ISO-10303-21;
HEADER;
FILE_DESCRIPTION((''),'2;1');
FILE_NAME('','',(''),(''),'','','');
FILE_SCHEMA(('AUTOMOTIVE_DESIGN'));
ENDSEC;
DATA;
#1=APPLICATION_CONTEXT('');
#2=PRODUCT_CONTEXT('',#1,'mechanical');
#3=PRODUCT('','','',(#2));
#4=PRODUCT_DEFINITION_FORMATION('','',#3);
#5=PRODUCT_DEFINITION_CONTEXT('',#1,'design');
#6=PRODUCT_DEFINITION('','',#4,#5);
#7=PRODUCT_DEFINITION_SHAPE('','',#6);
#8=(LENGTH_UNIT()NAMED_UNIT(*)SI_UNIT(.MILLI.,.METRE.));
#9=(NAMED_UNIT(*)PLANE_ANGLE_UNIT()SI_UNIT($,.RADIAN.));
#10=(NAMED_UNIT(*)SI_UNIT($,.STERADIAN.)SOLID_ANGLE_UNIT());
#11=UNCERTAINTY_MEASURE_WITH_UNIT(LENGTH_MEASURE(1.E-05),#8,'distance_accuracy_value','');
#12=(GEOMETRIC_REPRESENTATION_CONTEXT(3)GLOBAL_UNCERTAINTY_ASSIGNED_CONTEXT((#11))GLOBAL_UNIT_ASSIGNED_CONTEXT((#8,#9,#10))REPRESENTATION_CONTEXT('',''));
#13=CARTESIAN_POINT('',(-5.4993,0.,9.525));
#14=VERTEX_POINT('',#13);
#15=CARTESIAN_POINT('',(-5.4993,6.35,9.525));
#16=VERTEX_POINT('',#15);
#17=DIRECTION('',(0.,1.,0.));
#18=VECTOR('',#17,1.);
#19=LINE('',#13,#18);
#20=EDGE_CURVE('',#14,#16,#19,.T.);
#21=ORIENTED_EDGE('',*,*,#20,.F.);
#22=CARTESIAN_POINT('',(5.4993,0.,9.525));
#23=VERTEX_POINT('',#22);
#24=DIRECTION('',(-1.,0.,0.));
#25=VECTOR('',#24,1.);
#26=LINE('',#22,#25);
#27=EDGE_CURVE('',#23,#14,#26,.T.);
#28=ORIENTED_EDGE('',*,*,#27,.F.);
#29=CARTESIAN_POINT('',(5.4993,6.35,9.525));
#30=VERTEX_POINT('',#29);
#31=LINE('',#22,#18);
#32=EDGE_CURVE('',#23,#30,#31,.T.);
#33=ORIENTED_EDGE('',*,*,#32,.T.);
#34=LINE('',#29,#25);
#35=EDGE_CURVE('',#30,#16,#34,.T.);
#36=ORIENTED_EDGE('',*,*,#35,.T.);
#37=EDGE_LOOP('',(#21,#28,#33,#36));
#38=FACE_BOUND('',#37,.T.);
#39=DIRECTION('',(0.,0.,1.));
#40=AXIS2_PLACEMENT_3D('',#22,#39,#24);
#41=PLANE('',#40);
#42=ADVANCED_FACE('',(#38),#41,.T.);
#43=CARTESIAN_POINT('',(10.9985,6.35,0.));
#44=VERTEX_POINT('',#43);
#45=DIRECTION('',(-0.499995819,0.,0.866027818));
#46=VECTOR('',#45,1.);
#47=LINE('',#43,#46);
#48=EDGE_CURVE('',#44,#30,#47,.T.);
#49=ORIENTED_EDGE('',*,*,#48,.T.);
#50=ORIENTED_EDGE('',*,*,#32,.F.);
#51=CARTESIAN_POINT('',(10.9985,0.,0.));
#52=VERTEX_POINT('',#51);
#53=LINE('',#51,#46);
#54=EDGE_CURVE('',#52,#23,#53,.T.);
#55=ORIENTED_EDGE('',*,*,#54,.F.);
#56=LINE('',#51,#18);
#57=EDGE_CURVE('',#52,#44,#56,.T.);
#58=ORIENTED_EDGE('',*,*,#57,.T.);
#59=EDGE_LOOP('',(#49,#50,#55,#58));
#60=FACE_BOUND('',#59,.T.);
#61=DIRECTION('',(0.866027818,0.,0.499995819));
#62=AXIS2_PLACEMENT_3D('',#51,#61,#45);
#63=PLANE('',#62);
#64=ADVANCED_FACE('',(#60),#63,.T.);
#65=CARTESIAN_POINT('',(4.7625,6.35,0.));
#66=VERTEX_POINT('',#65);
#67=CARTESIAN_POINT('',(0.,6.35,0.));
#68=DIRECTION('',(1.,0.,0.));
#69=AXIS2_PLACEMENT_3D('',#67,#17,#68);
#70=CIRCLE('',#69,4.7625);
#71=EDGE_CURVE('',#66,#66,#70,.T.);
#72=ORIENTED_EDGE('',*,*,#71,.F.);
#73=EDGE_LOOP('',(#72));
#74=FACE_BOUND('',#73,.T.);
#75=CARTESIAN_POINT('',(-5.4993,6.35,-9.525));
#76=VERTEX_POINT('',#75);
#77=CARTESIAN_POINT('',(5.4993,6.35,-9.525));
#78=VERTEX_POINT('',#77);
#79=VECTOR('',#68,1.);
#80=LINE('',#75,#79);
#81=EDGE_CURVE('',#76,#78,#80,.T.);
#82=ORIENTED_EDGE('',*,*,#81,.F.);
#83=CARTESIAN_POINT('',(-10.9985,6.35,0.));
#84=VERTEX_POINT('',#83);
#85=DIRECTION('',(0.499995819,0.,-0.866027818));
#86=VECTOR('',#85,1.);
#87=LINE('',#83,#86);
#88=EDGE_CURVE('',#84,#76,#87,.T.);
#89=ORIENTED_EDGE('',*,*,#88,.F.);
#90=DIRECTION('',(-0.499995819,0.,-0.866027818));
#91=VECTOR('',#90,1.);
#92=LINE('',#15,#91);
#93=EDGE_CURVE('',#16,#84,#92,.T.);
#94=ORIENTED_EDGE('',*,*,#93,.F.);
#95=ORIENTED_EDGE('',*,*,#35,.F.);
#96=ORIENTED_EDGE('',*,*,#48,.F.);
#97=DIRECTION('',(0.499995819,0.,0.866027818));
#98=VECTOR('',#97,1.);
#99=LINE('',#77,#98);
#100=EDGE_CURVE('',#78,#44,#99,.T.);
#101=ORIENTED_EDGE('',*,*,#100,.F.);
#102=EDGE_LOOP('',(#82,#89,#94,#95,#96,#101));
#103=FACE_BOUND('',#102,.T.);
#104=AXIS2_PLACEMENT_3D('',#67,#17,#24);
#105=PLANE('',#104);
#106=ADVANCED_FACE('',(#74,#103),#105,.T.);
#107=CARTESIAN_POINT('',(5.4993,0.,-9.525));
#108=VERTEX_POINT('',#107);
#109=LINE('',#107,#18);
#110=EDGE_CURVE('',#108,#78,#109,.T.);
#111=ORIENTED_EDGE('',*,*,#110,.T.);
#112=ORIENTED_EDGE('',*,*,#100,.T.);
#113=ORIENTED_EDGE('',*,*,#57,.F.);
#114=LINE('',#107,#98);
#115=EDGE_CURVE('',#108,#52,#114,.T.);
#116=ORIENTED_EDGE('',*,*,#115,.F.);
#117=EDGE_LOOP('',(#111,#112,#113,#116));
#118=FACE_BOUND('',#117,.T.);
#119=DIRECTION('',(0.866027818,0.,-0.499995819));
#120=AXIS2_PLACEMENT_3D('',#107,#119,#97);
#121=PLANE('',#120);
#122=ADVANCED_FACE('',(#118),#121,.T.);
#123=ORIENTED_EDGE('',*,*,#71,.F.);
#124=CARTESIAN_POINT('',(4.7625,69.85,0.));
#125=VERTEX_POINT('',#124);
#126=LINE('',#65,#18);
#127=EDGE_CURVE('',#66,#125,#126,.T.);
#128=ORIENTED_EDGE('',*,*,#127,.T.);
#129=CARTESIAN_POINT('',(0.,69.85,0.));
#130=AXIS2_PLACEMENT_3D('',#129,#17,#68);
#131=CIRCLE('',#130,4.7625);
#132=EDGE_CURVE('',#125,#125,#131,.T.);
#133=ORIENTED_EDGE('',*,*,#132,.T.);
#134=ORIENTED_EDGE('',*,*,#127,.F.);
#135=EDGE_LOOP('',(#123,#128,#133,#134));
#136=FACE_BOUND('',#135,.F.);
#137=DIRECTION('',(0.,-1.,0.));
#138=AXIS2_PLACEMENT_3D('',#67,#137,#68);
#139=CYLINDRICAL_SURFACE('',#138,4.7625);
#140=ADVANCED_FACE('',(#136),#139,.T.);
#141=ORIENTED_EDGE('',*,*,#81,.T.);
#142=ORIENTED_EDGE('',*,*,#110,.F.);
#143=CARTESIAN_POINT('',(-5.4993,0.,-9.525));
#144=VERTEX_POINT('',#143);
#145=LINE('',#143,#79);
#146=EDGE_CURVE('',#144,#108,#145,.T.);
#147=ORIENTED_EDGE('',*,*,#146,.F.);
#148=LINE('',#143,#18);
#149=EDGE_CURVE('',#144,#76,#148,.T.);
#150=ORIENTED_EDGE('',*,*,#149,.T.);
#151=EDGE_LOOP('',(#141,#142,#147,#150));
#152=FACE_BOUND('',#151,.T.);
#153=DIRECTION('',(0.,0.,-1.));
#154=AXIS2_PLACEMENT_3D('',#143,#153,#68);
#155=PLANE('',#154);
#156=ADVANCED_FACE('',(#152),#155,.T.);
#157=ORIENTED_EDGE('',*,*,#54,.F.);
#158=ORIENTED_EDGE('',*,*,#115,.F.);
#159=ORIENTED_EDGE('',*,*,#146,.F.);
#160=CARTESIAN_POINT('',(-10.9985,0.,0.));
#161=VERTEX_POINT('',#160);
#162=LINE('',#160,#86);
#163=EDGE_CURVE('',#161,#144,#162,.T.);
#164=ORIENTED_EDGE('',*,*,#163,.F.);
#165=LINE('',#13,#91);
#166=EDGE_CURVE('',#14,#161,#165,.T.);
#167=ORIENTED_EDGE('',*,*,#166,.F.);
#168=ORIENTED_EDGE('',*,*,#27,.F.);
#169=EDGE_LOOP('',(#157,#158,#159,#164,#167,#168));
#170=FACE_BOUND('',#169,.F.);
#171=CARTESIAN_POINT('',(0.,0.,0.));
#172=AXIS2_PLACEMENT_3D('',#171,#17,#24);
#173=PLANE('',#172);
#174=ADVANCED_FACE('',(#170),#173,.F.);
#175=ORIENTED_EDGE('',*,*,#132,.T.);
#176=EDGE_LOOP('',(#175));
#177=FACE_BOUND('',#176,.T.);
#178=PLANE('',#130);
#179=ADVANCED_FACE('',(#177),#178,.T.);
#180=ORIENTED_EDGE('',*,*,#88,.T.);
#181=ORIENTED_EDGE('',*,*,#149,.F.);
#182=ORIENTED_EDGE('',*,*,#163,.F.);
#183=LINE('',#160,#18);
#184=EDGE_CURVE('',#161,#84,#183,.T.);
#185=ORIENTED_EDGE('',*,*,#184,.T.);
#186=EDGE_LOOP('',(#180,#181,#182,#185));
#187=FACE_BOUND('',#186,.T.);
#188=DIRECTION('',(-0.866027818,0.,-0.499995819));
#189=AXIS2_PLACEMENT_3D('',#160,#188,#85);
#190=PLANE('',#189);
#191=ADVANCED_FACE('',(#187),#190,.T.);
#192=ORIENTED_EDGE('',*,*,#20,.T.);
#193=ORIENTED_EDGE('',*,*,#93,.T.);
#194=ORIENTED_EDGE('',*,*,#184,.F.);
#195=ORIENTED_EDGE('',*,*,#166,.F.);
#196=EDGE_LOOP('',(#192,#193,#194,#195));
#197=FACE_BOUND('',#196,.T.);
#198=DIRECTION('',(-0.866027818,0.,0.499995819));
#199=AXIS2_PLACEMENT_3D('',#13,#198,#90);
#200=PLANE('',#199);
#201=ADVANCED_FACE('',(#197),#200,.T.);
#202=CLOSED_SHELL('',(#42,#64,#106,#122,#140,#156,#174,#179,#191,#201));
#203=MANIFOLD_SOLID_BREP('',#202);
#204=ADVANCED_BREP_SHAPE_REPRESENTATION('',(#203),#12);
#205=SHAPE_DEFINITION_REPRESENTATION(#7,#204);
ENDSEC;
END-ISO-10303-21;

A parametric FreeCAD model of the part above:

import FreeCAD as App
import Part
import Sketcher
Q = App.Units.Quantity


def add_polygon(sketch, points):
    """Adds a closed chain of lines whose ends are joined by coincident constraints."""
    first, n = sketch.GeometryCount, len(points)
    for a, b in zip(points, points[1:] + points[:1]):
        sketch.addGeometry(Part.LineSegment(App.Vector(*a, 0), App.Vector(*b, 0)), False)
    for i in range(n):
        sketch.addConstraint(Sketcher.Constraint("Coincident", first + i, 2, first + (i + 1) % n, 1))

doc = App.newDocument("Part")
body = doc.addObject("PartDesign::Body", "Body")

# Sketch on XZ plane
sketch1 = body.newObject("Sketcher::SketchObject", "Sketch")
sketch1.AttachmentSupport = (doc.getObject("XZ_Plane"), [""])
sketch1.MapMode = "FlatFace"
add_polygon(sketch1, [(-5, -10), (-11, 0), (-5, 10), (5, 10), (11, 0), (5, -10)])  # lines 0-5
sketch1.addConstraint(Sketcher.Constraint("Horizontal", 2))
sketch1.addConstraint(Sketcher.Constraint("Horizontal", 5))
sketch1.addConstraint(Sketcher.Constraint("Symmetric", 0, 2, 3, 2, -1, 1))
sketch1.addConstraint(Sketcher.Constraint("Symmetric", 1, 2, 4, 2, -1, 1))
sketch1.addConstraint(Sketcher.Constraint("PointOnObject", 0, 2, -1))
sketch1.addConstraint(Sketcher.Constraint("Parallel", 0, 3))
sketch1.addConstraint(Sketcher.Constraint("Vertical", 2, 2, 4, 2))
sketch1.addConstraint(Sketcher.Constraint("DistanceY", -1, 1, 1, 2, Q("0.375 in")))
sketch1.addConstraint(Sketcher.Constraint("Angle", 0, Q("119.9997 deg")))
sketch1.addConstraint(Sketcher.Constraint("DistanceX", 0, 2, -1, 1, Q("0.433 in")))
pad1 = body.newObject("PartDesign::Pad", "Pad")
pad1.Profile = sketch1
pad1.Length = Q("0.25 in")
pad1.Reversed = True

# Sketch on XZ plane
sketch2 = body.newObject("Sketcher::SketchObject", "Sketch001")
sketch2.AttachmentSupport = (doc.getObject("XZ_Plane"), [""])
sketch2.MapMode = "FlatFace"
sketch2.AttachmentOffset = App.Placement(App.Vector(0, 0, -0.25 * 25.4), App.Rotation())
sketch2.addGeometry(Part.Circle(App.Vector(0, 0, 0), App.Vector(0, 0, 1), 4.8), False)
sketch2.addConstraint(Sketcher.Constraint("Coincident", 0, 3, -1, 1))
sketch2.addConstraint(Sketcher.Constraint("Diameter", 0, Q("0.375 in")))
pad2 = body.newObject("PartDesign::Pad", "Pad001")
pad2.Profile = sketch2
pad2.Length = Q("2.5 in")
pad2.Reversed = True

doc.recompute()
